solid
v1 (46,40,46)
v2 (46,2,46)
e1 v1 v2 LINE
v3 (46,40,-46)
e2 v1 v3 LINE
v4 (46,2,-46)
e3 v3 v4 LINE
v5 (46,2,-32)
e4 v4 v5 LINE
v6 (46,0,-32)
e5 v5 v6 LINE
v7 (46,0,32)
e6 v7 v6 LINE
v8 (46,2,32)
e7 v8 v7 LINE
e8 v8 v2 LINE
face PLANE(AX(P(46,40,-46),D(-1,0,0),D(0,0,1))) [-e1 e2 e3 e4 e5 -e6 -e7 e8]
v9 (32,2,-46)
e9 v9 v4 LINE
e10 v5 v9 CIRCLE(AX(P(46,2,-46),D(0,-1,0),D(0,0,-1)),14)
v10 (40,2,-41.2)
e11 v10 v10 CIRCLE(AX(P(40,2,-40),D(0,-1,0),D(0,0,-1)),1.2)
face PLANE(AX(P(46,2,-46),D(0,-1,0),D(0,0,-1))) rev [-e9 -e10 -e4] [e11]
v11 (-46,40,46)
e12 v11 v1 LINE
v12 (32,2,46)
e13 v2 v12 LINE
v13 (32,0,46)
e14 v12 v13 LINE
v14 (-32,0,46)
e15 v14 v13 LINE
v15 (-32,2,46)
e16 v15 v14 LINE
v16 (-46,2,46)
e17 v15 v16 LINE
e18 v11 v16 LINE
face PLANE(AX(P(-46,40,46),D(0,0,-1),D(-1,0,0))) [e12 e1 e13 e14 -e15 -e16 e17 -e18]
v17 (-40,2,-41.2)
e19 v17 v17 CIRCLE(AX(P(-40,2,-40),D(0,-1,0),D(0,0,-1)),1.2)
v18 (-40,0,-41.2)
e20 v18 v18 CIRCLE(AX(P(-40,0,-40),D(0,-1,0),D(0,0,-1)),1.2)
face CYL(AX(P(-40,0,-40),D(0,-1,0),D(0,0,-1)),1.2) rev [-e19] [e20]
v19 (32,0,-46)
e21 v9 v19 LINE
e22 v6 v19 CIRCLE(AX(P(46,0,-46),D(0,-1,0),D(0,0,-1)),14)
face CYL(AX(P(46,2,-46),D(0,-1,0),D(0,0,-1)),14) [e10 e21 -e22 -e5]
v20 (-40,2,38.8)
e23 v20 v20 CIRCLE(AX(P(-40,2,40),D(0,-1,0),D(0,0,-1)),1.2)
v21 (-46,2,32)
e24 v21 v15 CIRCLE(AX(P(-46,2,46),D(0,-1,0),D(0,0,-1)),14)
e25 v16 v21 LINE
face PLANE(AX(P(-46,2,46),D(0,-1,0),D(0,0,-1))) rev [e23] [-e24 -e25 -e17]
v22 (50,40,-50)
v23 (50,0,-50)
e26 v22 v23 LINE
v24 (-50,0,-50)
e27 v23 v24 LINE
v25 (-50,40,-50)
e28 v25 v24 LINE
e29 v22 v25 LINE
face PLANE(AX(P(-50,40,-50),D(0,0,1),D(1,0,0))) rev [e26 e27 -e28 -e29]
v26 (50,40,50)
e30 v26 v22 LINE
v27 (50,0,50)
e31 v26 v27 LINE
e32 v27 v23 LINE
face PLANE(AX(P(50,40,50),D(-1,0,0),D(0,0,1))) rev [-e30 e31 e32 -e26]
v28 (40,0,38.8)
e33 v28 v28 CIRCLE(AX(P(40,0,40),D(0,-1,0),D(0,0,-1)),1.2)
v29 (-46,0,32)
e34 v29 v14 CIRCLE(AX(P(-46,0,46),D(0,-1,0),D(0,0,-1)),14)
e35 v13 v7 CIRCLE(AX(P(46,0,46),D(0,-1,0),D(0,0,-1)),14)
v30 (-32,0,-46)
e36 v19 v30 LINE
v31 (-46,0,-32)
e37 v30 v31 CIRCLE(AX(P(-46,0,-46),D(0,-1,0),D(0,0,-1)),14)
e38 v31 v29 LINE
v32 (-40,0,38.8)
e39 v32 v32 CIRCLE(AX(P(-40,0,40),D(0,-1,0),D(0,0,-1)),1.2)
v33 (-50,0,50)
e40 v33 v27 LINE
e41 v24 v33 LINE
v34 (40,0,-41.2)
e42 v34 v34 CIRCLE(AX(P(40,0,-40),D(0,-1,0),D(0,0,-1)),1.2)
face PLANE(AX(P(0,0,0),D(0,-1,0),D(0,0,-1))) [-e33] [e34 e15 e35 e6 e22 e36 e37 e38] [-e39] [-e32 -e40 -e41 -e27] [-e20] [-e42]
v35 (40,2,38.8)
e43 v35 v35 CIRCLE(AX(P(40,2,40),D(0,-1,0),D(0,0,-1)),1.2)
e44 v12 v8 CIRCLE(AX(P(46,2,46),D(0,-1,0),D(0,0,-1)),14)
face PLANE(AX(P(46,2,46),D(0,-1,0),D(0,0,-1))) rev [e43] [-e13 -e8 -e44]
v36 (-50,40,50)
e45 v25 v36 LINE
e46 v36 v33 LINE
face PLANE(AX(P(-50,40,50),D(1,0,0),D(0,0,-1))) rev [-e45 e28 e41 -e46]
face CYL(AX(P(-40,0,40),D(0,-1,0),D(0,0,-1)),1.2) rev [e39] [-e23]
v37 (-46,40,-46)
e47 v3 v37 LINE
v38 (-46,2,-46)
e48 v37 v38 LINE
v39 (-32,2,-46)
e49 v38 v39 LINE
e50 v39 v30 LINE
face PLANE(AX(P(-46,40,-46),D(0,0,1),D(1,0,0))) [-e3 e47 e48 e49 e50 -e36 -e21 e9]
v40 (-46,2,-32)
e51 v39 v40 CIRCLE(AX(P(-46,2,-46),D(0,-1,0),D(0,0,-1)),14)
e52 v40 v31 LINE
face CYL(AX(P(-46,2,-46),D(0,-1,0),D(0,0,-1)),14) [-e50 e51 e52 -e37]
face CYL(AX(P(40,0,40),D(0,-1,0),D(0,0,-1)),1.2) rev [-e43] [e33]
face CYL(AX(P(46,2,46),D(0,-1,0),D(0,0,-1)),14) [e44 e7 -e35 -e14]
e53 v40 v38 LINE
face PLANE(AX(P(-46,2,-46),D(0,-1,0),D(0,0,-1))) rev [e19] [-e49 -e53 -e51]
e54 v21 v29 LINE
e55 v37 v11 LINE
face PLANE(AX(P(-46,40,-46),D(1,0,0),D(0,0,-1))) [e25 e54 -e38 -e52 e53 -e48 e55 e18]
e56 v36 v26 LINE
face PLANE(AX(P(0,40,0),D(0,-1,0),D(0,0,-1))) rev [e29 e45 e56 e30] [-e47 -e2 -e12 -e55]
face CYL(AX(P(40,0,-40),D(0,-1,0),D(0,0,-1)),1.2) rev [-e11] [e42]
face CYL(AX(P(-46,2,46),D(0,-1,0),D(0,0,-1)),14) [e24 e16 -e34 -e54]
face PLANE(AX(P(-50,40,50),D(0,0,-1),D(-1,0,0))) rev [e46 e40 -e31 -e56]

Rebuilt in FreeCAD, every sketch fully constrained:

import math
import FreeCAD as App
import Part
import Sketcher
from FreeCAD import Vector

doc = App.newDocument("Part")
body = doc.addObject("PartDesign::Body", "Body")

# Sketch on XZ plane
sketch1 = body.newObject("Sketcher::SketchObject", "Sketch")
sketch1.AttachmentSupport = (doc.getObject("XZ_Plane"), [""])
sketch1.MapMode = "FlatFace"
sketch1.addGeometry([
    Part.LineSegment(Vector(-50, -50, 0), Vector(-50, 50, 0)),  # 0
    Part.LineSegment(Vector(-50, 50, 0), Vector(50, 50, 0)),  # 1
    Part.LineSegment(Vector(50, 50, 0), Vector(50, -50, 0)),  # 2
    Part.LineSegment(Vector(50, -50, 0), Vector(-50, -50, 0)),  # 3
    Part.LineSegment(Vector(46, 46, 0), Vector(-46, 46, 0)),  # 4
    Part.LineSegment(Vector(-46, 46, 0), Vector(-46, -46, 0)),  # 5
    Part.LineSegment(Vector(-46, -46, 0), Vector(46, -46, 0)),  # 6
    Part.LineSegment(Vector(46, -46, 0), Vector(46, 46, 0)),  # 7
], False)
sketch1.addConstraint([
    Sketcher.Constraint("Coincident", 0, 2, 1, 1),
    Sketcher.Constraint("Coincident", 1, 2, 2, 1),
    Sketcher.Constraint("Coincident", 2, 2, 3, 1),
    Sketcher.Constraint("Coincident", 3, 2, 0, 1),
    Sketcher.Constraint("Coincident", 4, 2, 5, 1),
    Sketcher.Constraint("Coincident", 5, 2, 6, 1),
    Sketcher.Constraint("Coincident", 6, 2, 7, 1),
    Sketcher.Constraint("Coincident", 7, 2, 4, 1),
    Sketcher.Constraint("Vertical", 0),
    Sketcher.Constraint("Horizontal", 1),
    Sketcher.Constraint("Vertical", 2),
    Sketcher.Constraint("Horizontal", 3),
    Sketcher.Constraint("Horizontal", 4),
    Sketcher.Constraint("Vertical", 5),
    Sketcher.Constraint("Horizontal", 6),
    Sketcher.Constraint("Vertical", 7),
    Sketcher.Constraint("Symmetric", 0, 2, 2, 2, -1, 1),
    Sketcher.Constraint("Symmetric", 4, 2, 6, 2, -1, 1),
    Sketcher.Constraint("Equal", 3, 0),
    Sketcher.Constraint("Equal", 6, 5),
    Sketcher.Constraint("DistanceX", 1, 1, 1, 2, 100.0),
    Sketcher.Constraint("DistanceX", 4, 2, 4, 1, 92.0),
])
pad1 = body.newObject("PartDesign::Pad", "Pad")
pad1.Profile = sketch1
pad1.Length = 40
pad1.Reversed = True

# Sketch on XZ plane
sketch2 = body.newObject("Sketcher::SketchObject", "Sketch001")
sketch2.AttachmentSupport = (doc.getObject("XZ_Plane"), [""])
sketch2.MapMode = "FlatFace"
sketch2.addGeometry([
    Part.LineSegment(Vector(46, -46, 0), Vector(46, -32, 0)),  # 0
    Part.ArcOfCircle(Part.Circle(Vector(46, -46, 0), Vector(0, 0, 1), 14), math.radians(90), math.radians(180)),  # 1
    Part.LineSegment(Vector(32, -46, 0), Vector(46, -46, 0)),  # 2
    Part.LineSegment(Vector(-46, -46, 0), Vector(-32, -46, 0)),  # 3
    Part.ArcOfCircle(Part.Circle(Vector(-46, -46, 0), Vector(0, 0, 1), 14), math.radians(0), math.radians(90)),  # 4
    Part.LineSegment(Vector(-46, -32, 0), Vector(-46, -46, 0)),  # 5
    Part.LineSegment(Vector(-46, 46, 0), Vector(-46, 32, 0)),  # 6
    Part.ArcOfCircle(Part.Circle(Vector(-46, 46, 0), Vector(0, 0, 1), 14), math.radians(-90), math.radians(0)),  # 7
    Part.LineSegment(Vector(-32, 46, 0), Vector(-46, 46, 0)),  # 8
    Part.LineSegment(Vector(46, 46, 0), Vector(32, 46, 0)),  # 9
    Part.ArcOfCircle(Part.Circle(Vector(46, 46, 0), Vector(0, 0, 1), 14), math.radians(180), math.radians(270)),  # 10
    Part.LineSegment(Vector(46, 32, 0), Vector(46, 46, 0)),  # 11
], False)
sketch2.addConstraint([
    Sketcher.Constraint("Coincident", 0, 2, 1, 1),
    Sketcher.Constraint("Coincident", 1, 2, 2, 1),
    Sketcher.Constraint("Coincident", 2, 2, 0, 1),
    Sketcher.Constraint("Coincident", 3, 2, 4, 1),
    Sketcher.Constraint("Coincident", 4, 2, 5, 1),
    Sketcher.Constraint("Coincident", 5, 2, 3, 1),
    Sketcher.Constraint("Coincident", 6, 2, 7, 1),
    Sketcher.Constraint("Coincident", 7, 2, 8, 1),
    Sketcher.Constraint("Coincident", 8, 2, 6, 1),
    Sketcher.Constraint("Coincident", 9, 2, 10, 1),
    Sketcher.Constraint("Coincident", 10, 2, 11, 1),
    Sketcher.Constraint("Coincident", 11, 2, 9, 1),
    Sketcher.Constraint("Vertical", 0),
    Sketcher.Constraint("Horizontal", 2),
    Sketcher.Constraint("Horizontal", 3),
    Sketcher.Constraint("Vertical", 5),
    Sketcher.Constraint("Vertical", 6),
    Sketcher.Constraint("Horizontal", 8),
    Sketcher.Constraint("Horizontal", 9),
    Sketcher.Constraint("Vertical", 11),
    Sketcher.Constraint("Coincident", 2, 2, 1, 3),
    Sketcher.Constraint("Coincident", 5, 2, 4, 3),
    Sketcher.Constraint("Coincident", 8, 2, 7, 3),
    Sketcher.Constraint("Coincident", 11, 2, 10, 3),
    Sketcher.Constraint("Equal", 1, 4),
    Sketcher.Constraint("Equal", 4, 7),
    Sketcher.Constraint("Equal", 7, 10),
    Sketcher.Constraint("Symmetric", 1, 3, 7, 3, -1, 1),
    Sketcher.Constraint("Symmetric", 4, 3, 10, 3, -1, 1),
    Sketcher.Constraint("Symmetric", 1, 3, 4, 3, -2),
    Sketcher.Constraint("Radius", 1, 14.0),
    Sketcher.Constraint("DistanceX", -1, 1, 1, 3, 46.0),
    Sketcher.Constraint("DistanceY", 1, 3, -1, 1, 46.0),
])
pad2 = body.newObject("PartDesign::Pad", "Pad001")
pad2.Profile = sketch2
pad2.Length = 2
pad2.Reversed = True

# Sketch on XZ plane
sketch3 = body.newObject("Sketcher::SketchObject", "Sketch002")
sketch3.AttachmentSupport = (doc.getObject("XZ_Plane"), [""])
sketch3.MapMode = "FlatFace"
sketch3.addGeometry([
    Part.Circle(Vector(40, 40, 0), Vector(0, 0, 1), 1.2),
    Part.Circle(Vector(40, -40, 0), Vector(0, 0, 1), 1.2),
    Part.Circle(Vector(-40, -40, 0), Vector(0, 0, 1), 1.2),
    Part.Circle(Vector(-40, 40, 0), Vector(0, 0, 1), 1.2),
], False)
sketch3.addConstraint([
    Sketcher.Constraint("Equal", 0, 1),
    Sketcher.Constraint("Equal", 1, 2),
    Sketcher.Constraint("Equal", 2, 3),
    Sketcher.Constraint("Symmetric", 0, 3, 2, 3, -1, 1),
    Sketcher.Constraint("Symmetric", 1, 3, 3, 3, -1, 1),
    Sketcher.Constraint("Symmetric", 1, 3, 2, 3, -2),
    Sketcher.Constraint("Diameter", 0, 2.4),
    Sketcher.Constraint("DistanceX", -1, 1, 0, 3, 40.0),
    Sketcher.Constraint("DistanceY", -1, 1, 0, 3, 40.0),
])
doc.recompute()
hole = body.newObject("PartDesign::Hole", "Hole")
hole.Profile = sketch3
hole.ThreadType = "None"
hole.Diameter = 2.4
hole.DepthType = "ThroughAll"

doc.recompute()
